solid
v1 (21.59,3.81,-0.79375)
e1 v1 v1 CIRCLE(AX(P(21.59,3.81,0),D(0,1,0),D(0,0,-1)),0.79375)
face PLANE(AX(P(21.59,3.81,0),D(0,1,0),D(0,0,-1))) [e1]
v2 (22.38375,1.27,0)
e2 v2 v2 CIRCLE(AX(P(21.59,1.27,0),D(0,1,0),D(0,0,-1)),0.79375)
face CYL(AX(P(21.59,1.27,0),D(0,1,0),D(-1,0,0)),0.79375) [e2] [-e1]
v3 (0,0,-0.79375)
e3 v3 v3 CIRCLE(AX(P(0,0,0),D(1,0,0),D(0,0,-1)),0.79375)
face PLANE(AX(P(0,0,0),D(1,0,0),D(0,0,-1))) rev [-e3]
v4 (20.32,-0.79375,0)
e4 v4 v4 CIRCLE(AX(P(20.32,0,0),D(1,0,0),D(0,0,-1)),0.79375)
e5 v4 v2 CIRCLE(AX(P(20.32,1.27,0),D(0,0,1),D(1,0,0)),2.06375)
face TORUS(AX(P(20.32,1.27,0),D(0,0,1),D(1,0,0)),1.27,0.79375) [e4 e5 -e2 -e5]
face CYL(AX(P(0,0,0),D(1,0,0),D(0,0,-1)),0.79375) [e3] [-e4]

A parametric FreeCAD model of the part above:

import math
import FreeCAD as App
import Part
import Sketcher
Q = App.Units.Quantity

doc = App.newDocument("Part")
params = doc.addObject("Spreadsheet::Sheet", "Params")
for row, (alias, value) in enumerate([
    ("sketch1_diameter", "0.0625 in"),
    ("sketch2_radius", "0.05 in"),
    ("sketch2_width", "0.8 in"),
    ("sketch2_height", "0.1 in"),
], start=1):
    params.set(f"A{row}", alias)
    params.set(f"B{row}", "=" + value)
    params.setAlias(f"B{row}", alias)

body = doc.addObject("PartDesign::Body", "Body")

sketch1 = body.newObject("Sketcher::SketchObject", "Sketch")
sketch1.AttachmentSupport = (doc.getObject("YZ_Plane"), [""])
sketch1.MapMode = "FlatFace"
sketch1.addGeometry(Part.Circle(App.Vector(0, 0, 0), App.Vector(0, 0, 1), 0.8), False)
sketch1.addConstraint([
    Sketcher.Constraint("Coincident", 0, 3, -1, 1),
    Sketcher.Constraint("Diameter", 0, Q("0.0625 in")),
])
sketch1.setExpression("Constraints[1]", "Params.sketch1_diameter")

sketch2 = body.newObject("Sketcher::SketchObject", "Sketch001")
sketch2.AttachmentSupport = (doc.getObject("XY_Plane"), [""])
sketch2.MapMode = "FlatFace"
sketch2.addGeometry([
    Part.LineSegment(App.Vector(0, 0, 0), App.Vector(20.3, 0, 0)),
    Part.ArcOfCircle(Part.Circle(App.Vector(20.3, 1.3, 0), App.Vector(0, 0, 1), 1.3), math.radians(-90), math.radians(0)),
    Part.LineSegment(App.Vector(21.6, 1.3, 0), App.Vector(21.6, 3.8, 0)),
], False)
sketch2.addConstraint([
    Sketcher.Constraint("Tangent", 0, 2, 1, 1),
    Sketcher.Constraint("Tangent", 1, 2, 2, 1),
    Sketcher.Constraint("Horizontal", 0),
    Sketcher.Constraint("Vertical", 2),
    Sketcher.Constraint("Coincident", 0, 1, -1, 1),
    Sketcher.Constraint("Radius", 1, Q("0.05 in")),
    Sketcher.Constraint("DistanceX", 0, 1, 0, 2, Q("0.8 in")),
    Sketcher.Constraint("DistanceY", 2, 1, 2, 2, Q("0.1 in")),
])
sketch2.setExpression("Constraints[5]", "Params.sketch2_radius")
sketch2.setExpression("Constraints[6]", "Params.sketch2_width")
sketch2.setExpression("Constraints[7]", "Params.sketch2_height")
doc.recompute()

additivepipe = body.newObject("PartDesign::AdditivePipe", "AdditivePipe")
additivepipe.Profile = sketch1
additivepipe.Spine = (sketch2, ["Edge1", "Edge2", "Edge3"])

doc.recompute()
